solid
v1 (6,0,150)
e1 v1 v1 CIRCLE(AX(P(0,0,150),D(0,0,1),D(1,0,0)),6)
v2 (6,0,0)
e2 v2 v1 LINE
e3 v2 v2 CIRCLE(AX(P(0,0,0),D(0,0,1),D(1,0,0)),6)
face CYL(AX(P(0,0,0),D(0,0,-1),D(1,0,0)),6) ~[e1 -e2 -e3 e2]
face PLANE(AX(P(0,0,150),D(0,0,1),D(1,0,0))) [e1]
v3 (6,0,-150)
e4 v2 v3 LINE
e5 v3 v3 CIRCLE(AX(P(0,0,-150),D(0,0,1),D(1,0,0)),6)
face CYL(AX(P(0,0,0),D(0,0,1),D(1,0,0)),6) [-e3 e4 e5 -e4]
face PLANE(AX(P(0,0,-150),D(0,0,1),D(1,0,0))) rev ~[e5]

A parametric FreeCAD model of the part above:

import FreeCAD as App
import Part
import Sketcher
Q = App.Units.Quantity

doc = App.newDocument("Part")
body = doc.addObject("PartDesign::Body", "Body")

# Sketch on XY plane
sketch1 = body.newObject("Sketcher::SketchObject", "Sketch")
sketch1.AttachmentSupport = (doc.getObject("XY_Plane"), [""])
sketch1.MapMode = "FlatFace"
sketch1.addGeometry(Part.Circle(App.Vector(0, 0, 0), App.Vector(0, 0, 1), 6), False)
sketch1.addConstraint(Sketcher.Constraint("Coincident", 0, 3, -1, 1))
sketch1.addConstraint(Sketcher.Constraint("Diameter", 0, Q("12 mm")))
pad1 = body.newObject("PartDesign::Pad", "Pad")
pad1.Profile = sketch1
pad1.Length = 300
pad1.Midplane = True

doc.recompute()
